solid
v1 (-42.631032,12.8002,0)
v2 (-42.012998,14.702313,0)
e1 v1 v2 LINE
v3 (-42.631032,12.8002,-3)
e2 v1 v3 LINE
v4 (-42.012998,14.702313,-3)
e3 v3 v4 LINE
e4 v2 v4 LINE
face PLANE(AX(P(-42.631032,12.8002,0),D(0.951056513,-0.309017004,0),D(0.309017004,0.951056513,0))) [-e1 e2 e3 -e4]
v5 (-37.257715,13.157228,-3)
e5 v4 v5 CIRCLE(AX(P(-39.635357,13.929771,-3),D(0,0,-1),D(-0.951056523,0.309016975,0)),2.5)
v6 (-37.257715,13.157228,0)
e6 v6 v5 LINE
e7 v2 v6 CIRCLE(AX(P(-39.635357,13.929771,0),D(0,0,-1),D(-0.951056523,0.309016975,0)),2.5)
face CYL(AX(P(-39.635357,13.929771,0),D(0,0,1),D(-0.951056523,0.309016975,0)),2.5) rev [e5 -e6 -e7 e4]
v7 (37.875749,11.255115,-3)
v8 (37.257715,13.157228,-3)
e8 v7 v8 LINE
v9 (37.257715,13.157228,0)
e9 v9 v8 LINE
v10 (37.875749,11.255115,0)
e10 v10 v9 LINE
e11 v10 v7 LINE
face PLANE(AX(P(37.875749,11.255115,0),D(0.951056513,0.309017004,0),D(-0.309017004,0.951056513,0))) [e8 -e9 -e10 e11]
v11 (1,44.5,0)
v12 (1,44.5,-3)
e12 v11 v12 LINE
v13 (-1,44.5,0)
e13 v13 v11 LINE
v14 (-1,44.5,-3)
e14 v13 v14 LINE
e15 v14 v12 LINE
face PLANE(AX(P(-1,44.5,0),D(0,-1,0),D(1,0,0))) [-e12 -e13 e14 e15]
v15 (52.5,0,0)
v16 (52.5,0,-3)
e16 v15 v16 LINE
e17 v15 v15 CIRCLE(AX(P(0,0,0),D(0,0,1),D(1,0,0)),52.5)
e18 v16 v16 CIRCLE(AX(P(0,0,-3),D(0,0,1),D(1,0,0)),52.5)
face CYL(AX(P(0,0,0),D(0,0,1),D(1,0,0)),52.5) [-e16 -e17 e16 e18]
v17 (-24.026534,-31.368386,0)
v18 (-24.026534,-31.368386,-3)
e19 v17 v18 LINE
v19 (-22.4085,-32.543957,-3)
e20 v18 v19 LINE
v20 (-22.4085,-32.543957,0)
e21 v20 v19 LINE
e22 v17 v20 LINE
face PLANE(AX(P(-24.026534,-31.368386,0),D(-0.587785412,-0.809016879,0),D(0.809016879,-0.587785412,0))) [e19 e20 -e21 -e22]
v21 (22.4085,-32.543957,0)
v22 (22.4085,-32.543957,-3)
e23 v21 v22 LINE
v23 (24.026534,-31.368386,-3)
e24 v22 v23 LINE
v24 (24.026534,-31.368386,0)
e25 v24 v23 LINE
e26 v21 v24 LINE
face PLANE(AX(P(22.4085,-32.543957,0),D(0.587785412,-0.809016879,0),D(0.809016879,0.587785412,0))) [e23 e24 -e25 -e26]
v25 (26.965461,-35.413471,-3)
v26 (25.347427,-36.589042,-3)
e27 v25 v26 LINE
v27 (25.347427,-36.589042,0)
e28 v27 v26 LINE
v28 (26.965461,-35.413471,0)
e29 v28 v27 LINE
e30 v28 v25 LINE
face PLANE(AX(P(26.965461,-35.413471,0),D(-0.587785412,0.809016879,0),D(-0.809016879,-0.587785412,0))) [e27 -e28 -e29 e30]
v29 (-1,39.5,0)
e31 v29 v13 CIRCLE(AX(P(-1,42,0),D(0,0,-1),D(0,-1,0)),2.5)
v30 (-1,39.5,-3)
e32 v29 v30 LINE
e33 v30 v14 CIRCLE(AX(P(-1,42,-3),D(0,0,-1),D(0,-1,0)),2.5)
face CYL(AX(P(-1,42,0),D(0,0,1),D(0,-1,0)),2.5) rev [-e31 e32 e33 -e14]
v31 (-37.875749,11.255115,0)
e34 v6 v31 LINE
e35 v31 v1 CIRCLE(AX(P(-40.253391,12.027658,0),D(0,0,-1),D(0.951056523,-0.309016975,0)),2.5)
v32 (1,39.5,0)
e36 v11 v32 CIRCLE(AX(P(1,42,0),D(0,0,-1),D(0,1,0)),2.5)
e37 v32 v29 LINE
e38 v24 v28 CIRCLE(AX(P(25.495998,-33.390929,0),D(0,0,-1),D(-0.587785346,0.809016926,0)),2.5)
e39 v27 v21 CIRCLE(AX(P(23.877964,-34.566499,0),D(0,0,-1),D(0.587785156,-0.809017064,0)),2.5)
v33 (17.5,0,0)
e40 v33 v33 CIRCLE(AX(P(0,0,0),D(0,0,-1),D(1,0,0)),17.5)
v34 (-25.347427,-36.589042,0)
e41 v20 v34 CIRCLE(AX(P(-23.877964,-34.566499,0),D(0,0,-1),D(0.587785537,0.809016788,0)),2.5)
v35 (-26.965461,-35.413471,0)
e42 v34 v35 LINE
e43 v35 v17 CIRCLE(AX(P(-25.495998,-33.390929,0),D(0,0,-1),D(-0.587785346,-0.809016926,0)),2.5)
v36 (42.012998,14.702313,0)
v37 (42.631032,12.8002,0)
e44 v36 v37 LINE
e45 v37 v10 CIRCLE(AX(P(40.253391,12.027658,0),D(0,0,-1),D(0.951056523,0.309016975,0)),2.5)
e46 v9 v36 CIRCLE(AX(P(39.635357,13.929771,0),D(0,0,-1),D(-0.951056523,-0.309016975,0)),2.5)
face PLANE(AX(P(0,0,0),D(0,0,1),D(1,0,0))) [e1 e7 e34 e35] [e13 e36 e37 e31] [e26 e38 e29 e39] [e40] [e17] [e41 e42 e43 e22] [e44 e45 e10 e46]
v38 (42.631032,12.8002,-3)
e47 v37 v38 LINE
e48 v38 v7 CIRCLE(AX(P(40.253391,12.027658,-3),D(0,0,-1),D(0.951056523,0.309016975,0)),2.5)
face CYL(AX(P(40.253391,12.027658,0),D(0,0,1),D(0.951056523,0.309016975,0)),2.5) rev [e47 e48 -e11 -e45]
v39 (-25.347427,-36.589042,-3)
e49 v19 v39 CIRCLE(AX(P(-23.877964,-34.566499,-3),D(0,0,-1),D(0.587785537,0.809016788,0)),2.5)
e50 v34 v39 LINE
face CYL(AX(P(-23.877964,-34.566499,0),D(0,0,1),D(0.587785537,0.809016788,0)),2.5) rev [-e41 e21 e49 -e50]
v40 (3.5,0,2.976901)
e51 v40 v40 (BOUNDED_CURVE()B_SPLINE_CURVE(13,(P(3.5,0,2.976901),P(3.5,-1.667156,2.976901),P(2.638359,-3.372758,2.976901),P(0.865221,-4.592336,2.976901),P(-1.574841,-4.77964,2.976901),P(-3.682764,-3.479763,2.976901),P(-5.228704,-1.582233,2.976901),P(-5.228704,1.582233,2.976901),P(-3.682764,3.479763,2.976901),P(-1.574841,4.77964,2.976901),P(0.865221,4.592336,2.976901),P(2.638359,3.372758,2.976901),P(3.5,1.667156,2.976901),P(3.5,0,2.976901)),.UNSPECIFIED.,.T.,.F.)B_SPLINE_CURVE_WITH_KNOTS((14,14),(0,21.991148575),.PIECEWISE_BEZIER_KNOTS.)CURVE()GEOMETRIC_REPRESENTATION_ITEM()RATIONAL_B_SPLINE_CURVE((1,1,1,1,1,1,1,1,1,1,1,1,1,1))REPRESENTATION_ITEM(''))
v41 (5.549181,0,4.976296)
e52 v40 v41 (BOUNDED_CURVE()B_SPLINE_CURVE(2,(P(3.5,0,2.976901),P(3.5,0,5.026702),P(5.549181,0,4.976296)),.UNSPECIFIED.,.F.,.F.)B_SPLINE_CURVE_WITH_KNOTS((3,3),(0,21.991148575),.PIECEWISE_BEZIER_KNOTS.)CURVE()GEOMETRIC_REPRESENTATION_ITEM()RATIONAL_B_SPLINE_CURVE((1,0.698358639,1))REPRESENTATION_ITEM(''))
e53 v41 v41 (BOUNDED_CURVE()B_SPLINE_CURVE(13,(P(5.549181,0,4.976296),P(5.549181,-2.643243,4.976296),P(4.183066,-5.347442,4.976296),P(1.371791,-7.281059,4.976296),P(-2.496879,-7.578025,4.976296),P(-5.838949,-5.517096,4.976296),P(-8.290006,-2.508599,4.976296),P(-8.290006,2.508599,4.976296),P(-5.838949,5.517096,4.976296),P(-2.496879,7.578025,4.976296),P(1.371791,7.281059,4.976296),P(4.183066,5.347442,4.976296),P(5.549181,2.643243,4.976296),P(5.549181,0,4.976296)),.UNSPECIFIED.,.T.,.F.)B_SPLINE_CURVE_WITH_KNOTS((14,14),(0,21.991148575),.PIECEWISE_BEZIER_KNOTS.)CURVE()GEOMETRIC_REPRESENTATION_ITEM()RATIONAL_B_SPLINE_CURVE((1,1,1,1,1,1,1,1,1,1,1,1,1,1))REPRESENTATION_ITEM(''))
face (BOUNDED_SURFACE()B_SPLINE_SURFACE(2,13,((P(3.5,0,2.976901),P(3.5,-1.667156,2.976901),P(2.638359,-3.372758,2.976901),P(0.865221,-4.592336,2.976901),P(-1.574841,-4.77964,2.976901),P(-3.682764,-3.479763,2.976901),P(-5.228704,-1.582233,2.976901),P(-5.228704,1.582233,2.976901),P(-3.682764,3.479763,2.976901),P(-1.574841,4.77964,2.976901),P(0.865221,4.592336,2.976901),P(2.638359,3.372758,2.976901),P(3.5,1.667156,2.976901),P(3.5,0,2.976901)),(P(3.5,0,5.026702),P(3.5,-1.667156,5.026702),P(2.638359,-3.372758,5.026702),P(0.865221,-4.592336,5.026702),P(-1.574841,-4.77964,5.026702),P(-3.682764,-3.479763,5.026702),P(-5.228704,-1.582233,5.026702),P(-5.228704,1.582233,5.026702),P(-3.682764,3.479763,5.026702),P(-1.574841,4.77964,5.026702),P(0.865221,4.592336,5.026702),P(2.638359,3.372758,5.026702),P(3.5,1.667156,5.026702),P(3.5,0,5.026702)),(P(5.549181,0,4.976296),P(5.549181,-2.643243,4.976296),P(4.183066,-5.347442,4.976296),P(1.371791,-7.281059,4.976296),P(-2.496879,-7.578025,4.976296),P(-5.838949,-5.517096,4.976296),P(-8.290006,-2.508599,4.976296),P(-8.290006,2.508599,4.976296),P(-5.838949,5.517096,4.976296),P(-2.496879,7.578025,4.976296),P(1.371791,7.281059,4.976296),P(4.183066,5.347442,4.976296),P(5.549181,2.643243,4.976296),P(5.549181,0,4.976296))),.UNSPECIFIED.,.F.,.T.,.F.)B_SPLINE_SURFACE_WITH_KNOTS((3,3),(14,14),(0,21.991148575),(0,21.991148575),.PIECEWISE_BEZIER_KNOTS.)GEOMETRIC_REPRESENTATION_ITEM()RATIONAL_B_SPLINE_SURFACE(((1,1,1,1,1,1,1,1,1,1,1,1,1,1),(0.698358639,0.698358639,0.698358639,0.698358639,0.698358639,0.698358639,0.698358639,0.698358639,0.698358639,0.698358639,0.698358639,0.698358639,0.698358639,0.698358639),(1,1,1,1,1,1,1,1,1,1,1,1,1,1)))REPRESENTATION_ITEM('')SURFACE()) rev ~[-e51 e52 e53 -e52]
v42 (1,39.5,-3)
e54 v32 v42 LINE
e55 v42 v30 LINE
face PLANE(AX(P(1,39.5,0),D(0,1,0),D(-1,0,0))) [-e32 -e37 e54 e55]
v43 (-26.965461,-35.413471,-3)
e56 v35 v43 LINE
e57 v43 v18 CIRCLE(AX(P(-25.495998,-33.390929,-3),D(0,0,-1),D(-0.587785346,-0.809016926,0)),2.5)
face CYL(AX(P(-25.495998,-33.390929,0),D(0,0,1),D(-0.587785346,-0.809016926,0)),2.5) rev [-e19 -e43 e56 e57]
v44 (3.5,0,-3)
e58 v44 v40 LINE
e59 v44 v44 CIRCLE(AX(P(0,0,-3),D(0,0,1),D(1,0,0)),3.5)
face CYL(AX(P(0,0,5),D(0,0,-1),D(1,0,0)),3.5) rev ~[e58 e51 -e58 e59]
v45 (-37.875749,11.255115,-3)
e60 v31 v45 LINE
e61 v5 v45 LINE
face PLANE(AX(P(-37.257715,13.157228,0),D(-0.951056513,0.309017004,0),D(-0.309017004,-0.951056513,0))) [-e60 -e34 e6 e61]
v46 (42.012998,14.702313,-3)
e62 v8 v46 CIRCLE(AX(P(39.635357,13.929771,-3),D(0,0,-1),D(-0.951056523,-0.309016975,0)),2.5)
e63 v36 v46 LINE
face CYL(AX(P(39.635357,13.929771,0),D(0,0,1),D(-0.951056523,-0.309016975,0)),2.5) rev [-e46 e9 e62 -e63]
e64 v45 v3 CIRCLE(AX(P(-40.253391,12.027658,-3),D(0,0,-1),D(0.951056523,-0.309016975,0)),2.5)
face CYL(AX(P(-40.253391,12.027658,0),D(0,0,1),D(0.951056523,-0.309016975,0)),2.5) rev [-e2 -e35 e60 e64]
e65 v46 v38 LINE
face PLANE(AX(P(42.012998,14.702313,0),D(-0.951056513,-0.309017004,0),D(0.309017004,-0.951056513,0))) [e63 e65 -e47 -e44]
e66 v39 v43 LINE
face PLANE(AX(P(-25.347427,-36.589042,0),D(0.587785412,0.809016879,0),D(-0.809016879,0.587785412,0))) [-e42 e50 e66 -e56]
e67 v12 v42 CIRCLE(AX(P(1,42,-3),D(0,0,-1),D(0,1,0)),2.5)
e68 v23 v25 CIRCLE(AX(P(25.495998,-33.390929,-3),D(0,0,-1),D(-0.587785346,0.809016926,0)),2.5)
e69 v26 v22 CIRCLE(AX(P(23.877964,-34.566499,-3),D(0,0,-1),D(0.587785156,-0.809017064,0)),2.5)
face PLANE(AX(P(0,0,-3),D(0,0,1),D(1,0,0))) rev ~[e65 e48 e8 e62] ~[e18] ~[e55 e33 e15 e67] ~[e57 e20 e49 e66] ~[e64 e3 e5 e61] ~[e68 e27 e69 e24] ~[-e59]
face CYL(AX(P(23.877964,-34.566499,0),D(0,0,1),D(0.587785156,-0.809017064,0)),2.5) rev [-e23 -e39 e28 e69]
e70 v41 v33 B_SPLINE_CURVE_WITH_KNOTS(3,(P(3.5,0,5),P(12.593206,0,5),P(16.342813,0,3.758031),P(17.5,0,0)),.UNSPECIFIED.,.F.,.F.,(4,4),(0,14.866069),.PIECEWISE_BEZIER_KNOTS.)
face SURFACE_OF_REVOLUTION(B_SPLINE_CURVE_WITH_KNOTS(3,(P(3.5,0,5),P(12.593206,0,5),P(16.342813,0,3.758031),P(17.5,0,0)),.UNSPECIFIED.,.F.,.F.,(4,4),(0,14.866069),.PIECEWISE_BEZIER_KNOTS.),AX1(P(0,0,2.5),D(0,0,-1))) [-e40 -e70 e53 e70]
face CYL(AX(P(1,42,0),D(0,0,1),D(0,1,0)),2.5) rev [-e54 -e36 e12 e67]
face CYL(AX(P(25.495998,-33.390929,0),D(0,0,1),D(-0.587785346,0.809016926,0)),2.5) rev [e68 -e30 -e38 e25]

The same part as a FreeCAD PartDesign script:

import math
import FreeCAD as App
import Part
import Sketcher
from FreeCAD import Vector
Q = App.Units.Quantity


def edges_at(feature, points):
    """Names of the edges that pass closest to the given points."""
    edges = feature.Shape.Edges
    near = lambda p: min(range(len(edges)), key=lambda i: edges[i].distToShape(Part.Vertex(*p))[0])
    return sorted({f"Edge{near(p) + 1}" for p in points})

doc = App.newDocument("Part")
body = doc.addObject("PartDesign::Body", "Body")

sketch1 = doc.addObject("Sketcher::SketchObject", "Sketch")
body.addObject(sketch1)
sketch1.AttachmentSupport = (doc.XY_Plane, [""])
sketch1.MapMode = "FlatFace"
sketch1.addGeometry([
    Part.Circle(Vector(0, 0, 0), Vector(0, 0, 1), 52.5),
    Part.LineSegment(Vector(-24, -31.4, 0), Vector(-22.4, -32.5, 0)),
    Part.ArcOfCircle(Part.Circle(Vector(-23.9, -34.6, 0), Vector(0, 0, 1), 2.5), math.radians(-126), math.radians(54)),
    Part.LineSegment(Vector(-25.3, -36.6, 0), Vector(-27, -35.4, 0)),
    Part.ArcOfCircle(Part.Circle(Vector(-25.5, -33.4, 0), Vector(0, 0, 1), 2.5), math.radians(54), math.radians(234)),
    Part.LineSegment(Vector(22.4, -32.5, 0), Vector(24, -31.4, 0)),
    Part.ArcOfCircle(Part.Circle(Vector(25.5, -33.4, 0), Vector(0, 0, 1), 2.5), math.radians(-54), math.radians(126)),
    Part.LineSegment(Vector(27, -35.4, 0), Vector(25.3, -36.6, 0)),
    Part.ArcOfCircle(Part.Circle(Vector(23.9, -34.6, 0), Vector(0, 0, 1), 2.5), math.radians(126), math.radians(306)),
    Part.Circle(Vector(0, 0, 0), Vector(0, 0, 1), 3.5),
    Part.LineSegment(Vector(-37.3, 13.2, 0), Vector(-37.9, 11.3, 0)),
    Part.ArcOfCircle(Part.Circle(Vector(-40.3, 12, 0), Vector(0, 0, 1), 2.5), math.radians(162), math.radians(342)),
    Part.LineSegment(Vector(-42.6, 12.8, 0), Vector(-42, 14.7, 0)),
    Part.ArcOfCircle(Part.Circle(Vector(-39.6, 13.9, 0), Vector(0, 0, 1), 2.5), math.radians(-18), math.radians(162)),
    Part.LineSegment(Vector(37.9, 11.3, 0), Vector(37.3, 13.2, 0)),
    Part.ArcOfCircle(Part.Circle(Vector(39.6, 13.9, 0), Vector(0, 0, 1), 2.5), math.radians(18), math.radians(198)),
    Part.LineSegment(Vector(42, 14.7, 0), Vector(42.6, 12.8, 0)),
    Part.ArcOfCircle(Part.Circle(Vector(40.3, 12, 0), Vector(0, 0, 1), 2.5), math.radians(-162), math.radians(18)),
    Part.LineSegment(Vector(1, 39.5, 0), Vector(-1, 39.5, 0)),
    Part.ArcOfCircle(Part.Circle(Vector(-1, 42, 0), Vector(0, 0, 1), 2.5), math.radians(90), math.radians(270)),
    Part.LineSegment(Vector(-1, 44.5, 0), Vector(1, 44.5, 0)),
    Part.ArcOfCircle(Part.Circle(Vector(1, 42, 0), Vector(0, 0, 1), 2.5), math.radians(-90), math.radians(90)),
], False)
sketch1.addConstraint([
    Sketcher.Constraint("Tangent", 1, 2, 2, 2),
    Sketcher.Constraint("Tangent", 2, 1, 3, 1),
    Sketcher.Constraint("Tangent", 3, 2, 4, 2),
    Sketcher.Constraint("Tangent", 4, 1, 1, 1),
    Sketcher.Constraint("Tangent", 5, 2, 6, 2),
    Sketcher.Constraint("Tangent", 6, 1, 7, 1),
    Sketcher.Constraint("Tangent", 7, 2, 8, 2),
    Sketcher.Constraint("Tangent", 8, 1, 5, 1),
    Sketcher.Constraint("Tangent", 10, 2, 11, 2),
    Sketcher.Constraint("Tangent", 11, 1, 12, 1),
    Sketcher.Constraint("Tangent", 12, 2, 13, 2),
    Sketcher.Constraint("Tangent", 13, 1, 10, 1),
    Sketcher.Constraint("Tangent", 14, 2, 15, 2),
    Sketcher.Constraint("Tangent", 15, 1, 16, 1),
    Sketcher.Constraint("Tangent", 16, 2, 17, 2),
    Sketcher.Constraint("Tangent", 17, 1, 14, 1),
    Sketcher.Constraint("Tangent", 18, 2, 19, 2),
    Sketcher.Constraint("Tangent", 19, 1, 20, 1),
    Sketcher.Constraint("Tangent", 20, 2, 21, 2),
    Sketcher.Constraint("Tangent", 21, 1, 18, 1),
    Sketcher.Constraint("Horizontal", 18),
    Sketcher.Constraint("Horizontal", 20),
    Sketcher.Constraint("Coincident", 0, 3, -1, 1),
    Sketcher.Constraint("Coincident", 9, 3, -1, 1),
    Sketcher.Constraint("Equal", 2, 4),
    Sketcher.Constraint("Equal", 4, 6),
    Sketcher.Constraint("Equal", 6, 8),
    Sketcher.Constraint("Equal", 8, 11),
    Sketcher.Constraint("Equal", 11, 13),
    Sketcher.Constraint("Equal", 13, 15),
    Sketcher.Constraint("Equal", 15, 17),
    Sketcher.Constraint("Equal", 17, 19),
    Sketcher.Constraint("Symmetric", 4, 3, 6, 3, -2),
    Sketcher.Constraint("Symmetric", 2, 3, 8, 3, -2),
    Sketcher.Constraint("Symmetric", 13, 3, 15, 3, -2),
    Sketcher.Constraint("Symmetric", 11, 3, 17, 3, -2),
    Sketcher.Constraint("Equal", 7, 10),
    Sketcher.Constraint("Diameter", 0, 105.0),
    Sketcher.Constraint("Diameter", 9, 7.0),
    Sketcher.Constraint("Radius", 2, 2.5),
    Sketcher.Constraint("DistanceX", 18, 2, 18, 1, 2.0),
    Sketcher.Constraint("Angle", 1, Q("-36.000011 deg")),
    Sketcher.Constraint("Angle", 10, Q("-108.000001 deg")),
    Sketcher.Constraint("Distance", 1, 2.0),
    Sketcher.Constraint("DistanceX", 19, 3, -1, 1, 1.0),
    Sketcher.Constraint("DistanceY", -1, 1, 19, 3, 42.0),
    Sketcher.Constraint("DistanceX", 12, 2, -1, 1, 42.012998),
    Sketcher.Constraint("DistanceY", 2, 3, -1, 1, 34.566499),
    Sketcher.Constraint("DistanceX", 1, 2, -1, 1, 22.4085),
    Sketcher.Constraint("DistanceY", -1, 1, 11, 1, 12.8002),
])
pad1 = doc.addObject("PartDesign::Pad", "Pad")
body.addObject(pad1)
pad1.Profile = sketch1
pad1.Length = 3
pad1.Reversed = True

sketch2 = doc.addObject("Sketcher::SketchObject", "Sketch001")
body.addObject(sketch2)
sketch2.AttachmentSupport = (doc.XZ_Plane, [""])
sketch2.MapMode = "FlatFace"
sketch2.addGeometry([
    Part.LineSegment(Vector(3.5, 5, 0), Vector(3.5, 0, 0)),
    Part.LineSegment(Vector(3.5, 0, 0), Vector(17.5, 0, 0)),
    Part.BSplineCurve([Vector(3.5, 5, 0), Vector(12.593206, 5, 0), Vector(16.342813, 3.758031, 0), Vector(17.5, 0, 0)], [4, 4], [0, 14.866069], False, 3, [1, 1, 1, 1], False),
], False)
sketch2.addConstraint([
    Sketcher.Constraint("Block", 2),
    Sketcher.Constraint("Coincident", 0, 2, 1, 1),
    Sketcher.Constraint("Coincident", 1, 2, 2, 2),
    Sketcher.Constraint("Coincident", 2, 1, 0, 1),
    Sketcher.Constraint("Vertical", 0),
    Sketcher.Constraint("Horizontal", 1),
])
revolution = doc.addObject("PartDesign::Revolution", "Revolution")
body.addObject(revolution)
revolution.Profile = sketch2
revolution.ReferenceAxis = (sketch2, ["V_Axis"])
revolution.Angle = 360
doc.recompute()

fillet = doc.addObject("PartDesign::Fillet", "Fillet")
body.addObject(fillet)
fillet.Base = (revolution, edges_at(revolution, [(-3.5, 0, 5)]))
fillet.Radius = 2

doc.recompute()
